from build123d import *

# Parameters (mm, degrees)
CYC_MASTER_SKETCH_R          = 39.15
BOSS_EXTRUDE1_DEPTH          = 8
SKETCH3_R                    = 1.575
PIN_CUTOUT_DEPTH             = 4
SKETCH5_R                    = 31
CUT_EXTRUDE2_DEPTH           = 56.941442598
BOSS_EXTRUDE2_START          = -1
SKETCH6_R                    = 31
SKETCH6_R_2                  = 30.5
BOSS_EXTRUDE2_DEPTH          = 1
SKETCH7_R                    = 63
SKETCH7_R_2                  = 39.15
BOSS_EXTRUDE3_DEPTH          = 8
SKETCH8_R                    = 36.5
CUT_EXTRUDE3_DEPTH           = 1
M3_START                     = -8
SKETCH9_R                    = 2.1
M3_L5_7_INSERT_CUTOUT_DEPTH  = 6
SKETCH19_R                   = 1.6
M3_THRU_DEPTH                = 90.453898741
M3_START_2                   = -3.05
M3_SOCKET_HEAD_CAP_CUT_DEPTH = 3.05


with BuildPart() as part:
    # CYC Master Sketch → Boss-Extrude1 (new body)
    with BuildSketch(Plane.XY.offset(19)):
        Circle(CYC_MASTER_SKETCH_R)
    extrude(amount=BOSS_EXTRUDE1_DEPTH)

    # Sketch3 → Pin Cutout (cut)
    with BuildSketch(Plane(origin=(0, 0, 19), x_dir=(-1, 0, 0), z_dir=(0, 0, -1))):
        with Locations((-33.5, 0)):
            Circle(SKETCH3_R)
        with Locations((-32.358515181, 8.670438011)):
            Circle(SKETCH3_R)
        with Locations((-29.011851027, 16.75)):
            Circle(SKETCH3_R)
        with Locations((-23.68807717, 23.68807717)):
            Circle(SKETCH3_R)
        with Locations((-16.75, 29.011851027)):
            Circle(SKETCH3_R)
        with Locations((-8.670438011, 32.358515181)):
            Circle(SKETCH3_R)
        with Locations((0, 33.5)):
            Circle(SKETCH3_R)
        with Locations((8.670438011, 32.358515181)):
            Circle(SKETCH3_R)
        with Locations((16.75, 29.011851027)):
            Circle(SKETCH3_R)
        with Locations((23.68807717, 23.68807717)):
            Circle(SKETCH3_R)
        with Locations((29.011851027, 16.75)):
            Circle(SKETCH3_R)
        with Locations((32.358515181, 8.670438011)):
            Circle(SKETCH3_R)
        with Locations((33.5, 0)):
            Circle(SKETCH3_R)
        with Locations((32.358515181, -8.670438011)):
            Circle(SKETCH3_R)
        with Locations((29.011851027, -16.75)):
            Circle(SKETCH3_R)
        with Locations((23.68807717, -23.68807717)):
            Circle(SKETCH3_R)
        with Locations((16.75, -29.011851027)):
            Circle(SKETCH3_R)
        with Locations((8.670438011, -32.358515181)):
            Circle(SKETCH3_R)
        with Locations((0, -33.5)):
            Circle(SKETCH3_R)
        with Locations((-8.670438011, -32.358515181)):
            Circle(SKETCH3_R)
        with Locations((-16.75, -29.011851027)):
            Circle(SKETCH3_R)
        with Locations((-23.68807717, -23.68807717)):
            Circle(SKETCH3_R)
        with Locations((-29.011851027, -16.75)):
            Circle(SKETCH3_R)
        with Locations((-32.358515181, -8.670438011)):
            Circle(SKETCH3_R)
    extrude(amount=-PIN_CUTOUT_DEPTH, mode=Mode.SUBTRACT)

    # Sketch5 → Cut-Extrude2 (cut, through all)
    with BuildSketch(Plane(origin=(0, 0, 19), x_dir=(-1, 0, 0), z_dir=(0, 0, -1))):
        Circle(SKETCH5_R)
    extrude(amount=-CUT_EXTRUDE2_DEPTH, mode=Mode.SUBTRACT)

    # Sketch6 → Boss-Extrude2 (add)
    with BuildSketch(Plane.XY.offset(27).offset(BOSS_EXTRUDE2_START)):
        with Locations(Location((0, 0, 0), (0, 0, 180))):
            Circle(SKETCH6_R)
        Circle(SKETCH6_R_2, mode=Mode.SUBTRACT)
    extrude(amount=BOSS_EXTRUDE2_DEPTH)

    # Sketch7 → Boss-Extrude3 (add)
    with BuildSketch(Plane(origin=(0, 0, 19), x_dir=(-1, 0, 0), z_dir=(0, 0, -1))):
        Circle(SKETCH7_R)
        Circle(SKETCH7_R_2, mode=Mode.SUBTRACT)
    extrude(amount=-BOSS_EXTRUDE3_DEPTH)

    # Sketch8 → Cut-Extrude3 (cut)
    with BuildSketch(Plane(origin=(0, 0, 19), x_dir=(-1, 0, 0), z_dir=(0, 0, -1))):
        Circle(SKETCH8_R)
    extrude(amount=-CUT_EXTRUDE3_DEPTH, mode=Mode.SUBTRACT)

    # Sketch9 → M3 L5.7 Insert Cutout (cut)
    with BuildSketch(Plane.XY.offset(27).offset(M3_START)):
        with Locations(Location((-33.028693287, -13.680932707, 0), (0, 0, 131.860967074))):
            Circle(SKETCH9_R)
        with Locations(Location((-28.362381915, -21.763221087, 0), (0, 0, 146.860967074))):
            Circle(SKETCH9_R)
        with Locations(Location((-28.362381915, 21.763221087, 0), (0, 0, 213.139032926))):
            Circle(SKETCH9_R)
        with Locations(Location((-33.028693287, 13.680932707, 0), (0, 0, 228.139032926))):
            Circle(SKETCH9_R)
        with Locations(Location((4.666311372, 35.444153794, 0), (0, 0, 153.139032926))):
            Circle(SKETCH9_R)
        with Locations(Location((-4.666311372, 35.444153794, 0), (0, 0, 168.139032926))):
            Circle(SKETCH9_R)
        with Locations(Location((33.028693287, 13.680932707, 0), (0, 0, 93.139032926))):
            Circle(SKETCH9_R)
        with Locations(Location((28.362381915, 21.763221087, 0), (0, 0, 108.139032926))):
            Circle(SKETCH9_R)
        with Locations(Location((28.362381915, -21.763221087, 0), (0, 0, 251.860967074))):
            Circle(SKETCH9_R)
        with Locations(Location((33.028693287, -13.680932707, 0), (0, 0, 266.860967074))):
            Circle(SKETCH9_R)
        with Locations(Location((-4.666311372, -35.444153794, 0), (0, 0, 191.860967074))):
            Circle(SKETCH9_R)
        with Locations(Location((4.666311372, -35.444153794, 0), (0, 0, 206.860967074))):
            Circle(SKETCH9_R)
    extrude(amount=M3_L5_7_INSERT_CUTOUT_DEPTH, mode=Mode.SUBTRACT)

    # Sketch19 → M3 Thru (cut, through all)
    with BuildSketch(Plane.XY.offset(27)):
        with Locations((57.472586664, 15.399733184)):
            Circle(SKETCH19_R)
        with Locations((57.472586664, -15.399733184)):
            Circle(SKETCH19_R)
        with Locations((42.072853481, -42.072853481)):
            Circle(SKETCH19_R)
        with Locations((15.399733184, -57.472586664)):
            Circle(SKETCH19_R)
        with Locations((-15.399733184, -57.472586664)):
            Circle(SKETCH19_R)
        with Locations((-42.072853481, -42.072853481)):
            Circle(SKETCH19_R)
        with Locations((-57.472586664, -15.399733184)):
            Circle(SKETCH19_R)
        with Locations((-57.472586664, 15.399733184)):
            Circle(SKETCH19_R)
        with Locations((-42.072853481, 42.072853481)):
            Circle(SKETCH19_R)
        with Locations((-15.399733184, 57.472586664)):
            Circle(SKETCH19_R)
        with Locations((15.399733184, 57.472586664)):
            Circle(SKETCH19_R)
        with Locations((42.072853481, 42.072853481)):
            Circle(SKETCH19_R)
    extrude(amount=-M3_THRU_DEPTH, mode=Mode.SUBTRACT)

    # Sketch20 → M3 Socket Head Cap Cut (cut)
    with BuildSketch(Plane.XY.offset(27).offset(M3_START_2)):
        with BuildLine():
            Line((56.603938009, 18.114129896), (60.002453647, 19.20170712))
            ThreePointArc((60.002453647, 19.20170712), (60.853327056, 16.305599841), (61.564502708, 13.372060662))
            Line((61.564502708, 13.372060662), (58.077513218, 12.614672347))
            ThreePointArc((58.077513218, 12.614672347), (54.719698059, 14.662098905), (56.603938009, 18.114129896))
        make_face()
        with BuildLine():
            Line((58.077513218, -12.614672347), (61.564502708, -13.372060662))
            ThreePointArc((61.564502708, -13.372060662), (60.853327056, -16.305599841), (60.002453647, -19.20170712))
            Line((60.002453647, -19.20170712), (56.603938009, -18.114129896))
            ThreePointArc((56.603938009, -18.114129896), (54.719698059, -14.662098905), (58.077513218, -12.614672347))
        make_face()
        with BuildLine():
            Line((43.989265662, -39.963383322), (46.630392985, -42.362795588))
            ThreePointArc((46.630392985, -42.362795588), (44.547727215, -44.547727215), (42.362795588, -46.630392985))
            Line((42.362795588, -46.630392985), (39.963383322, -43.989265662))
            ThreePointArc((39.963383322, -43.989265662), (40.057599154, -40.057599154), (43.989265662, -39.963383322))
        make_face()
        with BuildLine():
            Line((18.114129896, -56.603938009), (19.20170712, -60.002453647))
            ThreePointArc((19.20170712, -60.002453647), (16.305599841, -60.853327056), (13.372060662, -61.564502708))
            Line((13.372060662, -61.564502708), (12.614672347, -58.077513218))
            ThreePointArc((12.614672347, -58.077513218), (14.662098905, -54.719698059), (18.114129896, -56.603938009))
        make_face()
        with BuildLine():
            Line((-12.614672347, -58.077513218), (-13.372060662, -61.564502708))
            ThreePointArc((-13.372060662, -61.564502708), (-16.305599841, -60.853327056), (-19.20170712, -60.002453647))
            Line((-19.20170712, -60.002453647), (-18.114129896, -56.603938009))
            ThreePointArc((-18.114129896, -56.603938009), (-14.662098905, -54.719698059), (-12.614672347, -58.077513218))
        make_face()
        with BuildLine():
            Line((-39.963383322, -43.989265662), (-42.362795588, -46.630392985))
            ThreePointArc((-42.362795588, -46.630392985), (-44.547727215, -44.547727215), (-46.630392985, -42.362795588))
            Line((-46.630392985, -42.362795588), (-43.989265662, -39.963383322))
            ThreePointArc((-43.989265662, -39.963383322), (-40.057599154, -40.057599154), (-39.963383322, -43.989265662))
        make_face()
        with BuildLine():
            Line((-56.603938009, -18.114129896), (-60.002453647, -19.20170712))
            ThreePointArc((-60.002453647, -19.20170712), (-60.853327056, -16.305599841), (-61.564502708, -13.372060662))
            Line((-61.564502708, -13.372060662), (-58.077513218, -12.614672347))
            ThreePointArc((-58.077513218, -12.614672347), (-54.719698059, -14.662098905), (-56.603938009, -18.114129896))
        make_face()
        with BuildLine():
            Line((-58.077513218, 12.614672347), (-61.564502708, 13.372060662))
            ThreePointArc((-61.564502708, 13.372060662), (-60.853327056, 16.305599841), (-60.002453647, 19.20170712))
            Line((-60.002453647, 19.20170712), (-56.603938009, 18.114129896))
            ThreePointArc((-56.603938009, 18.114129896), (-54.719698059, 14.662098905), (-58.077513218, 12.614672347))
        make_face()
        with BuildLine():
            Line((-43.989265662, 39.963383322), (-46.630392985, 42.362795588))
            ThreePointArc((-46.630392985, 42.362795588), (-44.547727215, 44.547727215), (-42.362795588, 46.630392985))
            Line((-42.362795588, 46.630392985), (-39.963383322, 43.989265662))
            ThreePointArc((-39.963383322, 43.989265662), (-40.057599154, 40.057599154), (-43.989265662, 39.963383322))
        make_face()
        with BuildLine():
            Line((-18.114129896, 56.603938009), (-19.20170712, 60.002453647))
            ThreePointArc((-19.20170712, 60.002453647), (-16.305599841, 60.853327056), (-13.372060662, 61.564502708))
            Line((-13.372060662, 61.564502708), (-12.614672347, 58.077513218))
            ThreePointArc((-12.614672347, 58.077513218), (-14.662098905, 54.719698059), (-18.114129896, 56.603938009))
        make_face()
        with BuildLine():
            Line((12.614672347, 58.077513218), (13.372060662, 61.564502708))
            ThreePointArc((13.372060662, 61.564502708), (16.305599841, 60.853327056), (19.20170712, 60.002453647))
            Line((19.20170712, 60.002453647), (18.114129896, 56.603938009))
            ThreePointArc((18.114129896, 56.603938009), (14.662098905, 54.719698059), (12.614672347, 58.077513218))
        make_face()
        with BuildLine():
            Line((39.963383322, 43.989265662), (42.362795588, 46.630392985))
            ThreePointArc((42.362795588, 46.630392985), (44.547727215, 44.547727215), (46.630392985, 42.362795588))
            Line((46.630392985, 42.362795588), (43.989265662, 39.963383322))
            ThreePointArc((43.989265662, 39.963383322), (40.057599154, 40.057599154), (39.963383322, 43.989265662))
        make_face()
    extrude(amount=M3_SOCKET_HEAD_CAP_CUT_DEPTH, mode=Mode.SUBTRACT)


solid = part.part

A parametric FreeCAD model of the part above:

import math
import FreeCAD as App
import Part
import Sketcher

doc = App.newDocument("Part")
body = doc.addObject("PartDesign::Body", "Body")

sketch1 = body.newObject("Sketcher::SketchObject", "Sketch")
sketch1.AttachmentSupport = (doc.getObject("XY_Plane"), [""])
sketch1.MapMode = "FlatFace"
sketch1.AttachmentOffset = App.Placement(App.Vector(0, 0, 19), App.Rotation())
sketch1.addGeometry(Part.Circle(App.Vector(0, 0, 0), App.Vector(0, 0, 1), 39), False)
sketch1.addConstraint([
    Sketcher.Constraint("Coincident", 0, 3, -1, 1),
    Sketcher.Constraint("Diameter", 0, 78.3),
])
pad1 = body.newObject("PartDesign::Pad", "Pad")
pad1.Profile = sketch1
pad1.Length = 8

sketch2 = body.newObject("Sketcher::SketchObject", "Sketch001")
sketch2.AttachmentSupport = (doc.getObject("XY_Plane"), [""])
sketch2.MapMode = "FlatFace"
sketch2.AttachmentOffset = App.Placement(App.Vector(0, 0, 19), App.Rotation())
sketch2.addGeometry([
    Part.Circle(App.Vector(33.5, 0, 0), App.Vector(0, 0, 1), 1.6),
    Part.Circle(App.Vector(32.4, 8.7, 0), App.Vector(0, 0, 1), 1.6),
    Part.Circle(App.Vector(29, 16.8, 0), App.Vector(0, 0, 1), 1.6),
    Part.Circle(App.Vector(23.7, 23.7, 0), App.Vector(0, 0, 1), 1.6),
    Part.Circle(App.Vector(16.8, 29, 0), App.Vector(0, 0, 1), 1.6),
    Part.Circle(App.Vector(8.7, 32.4, 0), App.Vector(0, 0, 1), 1.6),
    Part.Circle(App.Vector(0, 33.5, 0), App.Vector(0, 0, 1), 1.6),
    Part.Circle(App.Vector(-8.7, 32.4, 0), App.Vector(0, 0, 1), 1.6),
    Part.Circle(App.Vector(-16.8, 29, 0), App.Vector(0, 0, 1), 1.6),
    Part.Circle(App.Vector(-23.7, 23.7, 0), App.Vector(0, 0, 1), 1.6),
    Part.Circle(App.Vector(-29, 16.8, 0), App.Vector(0, 0, 1), 1.6),
    Part.Circle(App.Vector(-32.4, 8.7, 0), App.Vector(0, 0, 1), 1.6),
    Part.Circle(App.Vector(-33.5, 0, 0), App.Vector(0, 0, 1), 1.6),
    Part.Circle(App.Vector(-32.4, -8.7, 0), App.Vector(0, 0, 1), 1.6),
    Part.Circle(App.Vector(-29, -16.8, 0), App.Vector(0, 0, 1), 1.6),
    Part.Circle(App.Vector(-23.7, -23.7, 0), App.Vector(0, 0, 1), 1.6),
    Part.Circle(App.Vector(-16.8, -29, 0), App.Vector(0, 0, 1), 1.6),
    Part.Circle(App.Vector(-8.7, -32.4, 0), App.Vector(0, 0, 1), 1.6),
    Part.Circle(App.Vector(0, -33.5, 0), App.Vector(0, 0, 1), 1.6),
    Part.Circle(App.Vector(8.7, -32.4, 0), App.Vector(0, 0, 1), 1.6),
    Part.Circle(App.Vector(16.8, -29, 0), App.Vector(0, 0, 1), 1.6),
    Part.Circle(App.Vector(23.7, -23.7, 0), App.Vector(0, 0, 1), 1.6),
    Part.Circle(App.Vector(29, -16.8, 0), App.Vector(0, 0, 1), 1.6),
    Part.Circle(App.Vector(32.4, -8.7, 0), App.Vector(0, 0, 1), 1.6),
], False)
sketch2.addConstraint([
    Sketcher.Constraint("Equal", 0, 1),
    Sketcher.Constraint("Equal", 1, 2),
    Sketcher.Constraint("Equal", 2, 3),
    Sketcher.Constraint("Equal", 3, 4),
    Sketcher.Constraint("Equal", 4, 5),
    Sketcher.Constraint("Equal", 5, 6),
    Sketcher.Constraint("Equal", 6, 7),
    Sketcher.Constraint("Equal", 7, 8),
    Sketcher.Constraint("Equal", 8, 9),
    Sketcher.Constraint("Equal", 9, 10),
    Sketcher.Constraint("Equal", 10, 11),
    Sketcher.Constraint("Equal", 11, 12),
    Sketcher.Constraint("Equal", 12, 13),
    Sketcher.Constraint("Equal", 13, 14),
    Sketcher.Constraint("Equal", 14, 15),
    Sketcher.Constraint("Equal", 15, 16),
    Sketcher.Constraint("Equal", 16, 17),
    Sketcher.Constraint("Equal", 17, 18),
    Sketcher.Constraint("Equal", 18, 19),
    Sketcher.Constraint("Equal", 19, 20),
    Sketcher.Constraint("Equal", 20, 21),
    Sketcher.Constraint("Equal", 21, 22),
    Sketcher.Constraint("Equal", 22, 23),
    Sketcher.Constraint("Symmetric", 0, 3, 12, 3, -1, 1),
    Sketcher.Constraint("Symmetric", 1, 3, 13, 3, -1, 1),
    Sketcher.Constraint("Symmetric", 2, 3, 14, 3, -1, 1),
    Sketcher.Constraint("Symmetric", 3, 3, 15, 3, -1, 1),
    Sketcher.Constraint("Symmetric", 4, 3, 16, 3, -1, 1),
    Sketcher.Constraint("Symmetric", 5, 3, 17, 3, -1, 1),
    Sketcher.Constraint("Symmetric", 6, 3, 18, 3, -1, 1),
    Sketcher.Constraint("Symmetric", 7, 3, 19, 3, -1, 1),
    Sketcher.Constraint("Symmetric", 8, 3, 20, 3, -1, 1),
    Sketcher.Constraint("Symmetric", 9, 3, 21, 3, -1, 1),
    Sketcher.Constraint("Symmetric", 10, 3, 22, 3, -1, 1),
    Sketcher.Constraint("Symmetric", 11, 3, 23, 3, -1, 1),
    Sketcher.Constraint("Symmetric", 5, 3, 7, 3, -2),
    Sketcher.Constraint("Symmetric", 4, 3, 8, 3, -2),
    Sketcher.Constraint("Symmetric", 3, 3, 9, 3, -2),
    Sketcher.Constraint("Symmetric", 2, 3, 10, 3, -2),
    Sketcher.Constraint("Symmetric", 1, 3, 11, 3, -2),
    Sketcher.Constraint("PointOnObject", 0, 3, -1),
    Sketcher.Constraint("PointOnObject", 6, 3, -2),
    Sketcher.Constraint("Diameter", 0, 3.15),
    Sketcher.Constraint("DistanceX", -1, 1, 0, 3, 33.5),
    Sketcher.Constraint("DistanceY", -1, 1, 6, 3, 33.5),
    Sketcher.Constraint("DistanceX", 8, 3, 4, 3, 33.5),
    Sketcher.Constraint("DistanceY", 14, 3, 10, 3, 33.5),
    Sketcher.Constraint("DistanceY", -1, 1, 1, 3, 8.670438),
    Sketcher.Constraint("DistanceX", -1, 1, 2, 3, 29.011851),
    Sketcher.Constraint("DistanceY", -1, 1, 4, 3, 29.011851),
    Sketcher.Constraint("DistanceX", -1, 1, 5, 3, 8.670438),
    Sketcher.Constraint("DistanceX", 3, 3, 1, 3, 8.670438),
    Sketcher.Constraint("DistanceY", 1, 3, 3, 3, 15.017639),
    Sketcher.Constraint("DistanceX", 5, 3, 3, 3, 15.017639),
    Sketcher.Constraint("DistanceY", 3, 3, 5, 3, 8.670438),
])
pocket1 = body.newObject("PartDesign::Pocket", "Pocket")
pocket1.Profile = sketch2
pocket1.Length = 4
pocket1.Reversed = True

sketch3 = body.newObject("Sketcher::SketchObject", "Sketch002")
sketch3.AttachmentSupport = (doc.getObject("XY_Plane"), [""])
sketch3.MapMode = "FlatFace"
sketch3.AttachmentOffset = App.Placement(App.Vector(0, 0, 19), App.Rotation())
sketch3.addGeometry(Part.Circle(App.Vector(0, 0, 0), App.Vector(0, 0, 1), 31), False)
sketch3.addConstraint([
    Sketcher.Constraint("Coincident", 0, 3, -1, 1),
    Sketcher.Constraint("Diameter", 0, 62.0),
])
pocket2 = body.newObject("PartDesign::Pocket", "Pocket001")
pocket2.Profile = sketch3
pocket2.Type = "ThroughAll"
pocket2.Reversed = True

sketch4 = body.newObject("Sketcher::SketchObject", "Sketch003")
sketch4.AttachmentSupport = (doc.getObject("XY_Plane"), [""])
sketch4.MapMode = "FlatFace"
sketch4.AttachmentOffset = App.Placement(App.Vector(0, 0, 26), App.Rotation())
sketch4.addGeometry([
    Part.Circle(App.Vector(0, 0, 0), App.Vector(0, 0, 1), 31),
    Part.Circle(App.Vector(0, 0, 0), App.Vector(0, 0, 1), 30),
], False)
sketch4.addConstraint([
    Sketcher.Constraint("Coincident", 0, 3, -1, 1),
    Sketcher.Constraint("Coincident", 1, 3, -1, 1),
    Sketcher.Constraint("Diameter", 0, 62.0),
    Sketcher.Constraint("Diameter", 1, 61.0),
])
pad2 = body.newObject("PartDesign::Pad", "Pad001")
pad2.Profile = sketch4
pad2.Length = 1

sketch5 = body.newObject("Sketcher::SketchObject", "Sketch004")
sketch5.AttachmentSupport = (doc.getObject("XY_Plane"), [""])
sketch5.MapMode = "FlatFace"
sketch5.AttachmentOffset = App.Placement(App.Vector(0, 0, 19), App.Rotation())
sketch5.addGeometry([
    Part.Circle(App.Vector(0, 0, 0), App.Vector(0, 0, 1), 63),
    Part.Circle(App.Vector(0, 0, 0), App.Vector(0, 0, 1), 39),
], False)
sketch5.addConstraint([
    Sketcher.Constraint("Coincident", 0, 3, -1, 1),
    Sketcher.Constraint("Coincident", 1, 3, -1, 1),
    Sketcher.Constraint("Diameter", 0, 126.0),
    Sketcher.Constraint("Diameter", 1, 78.3),
])
pad3 = body.newObject("PartDesign::Pad", "Pad002")
pad3.Profile = sketch5
pad3.Length = 8

sketch6 = body.newObject("Sketcher::SketchObject", "Sketch005")
sketch6.AttachmentSupport = (doc.getObject("XY_Plane"), [""])
sketch6.MapMode = "FlatFace"
sketch6.AttachmentOffset = App.Placement(App.Vector(0, 0, 19), App.Rotation())
sketch6.addGeometry(Part.Circle(App.Vector(0, 0, 0), App.Vector(0, 0, 1), 36), False)
sketch6.addConstraint([
    Sketcher.Constraint("Coincident", 0, 3, -1, 1),
    Sketcher.Constraint("Diameter", 0, 73.0),
])
pocket3 = body.newObject("PartDesign::Pocket", "Pocket002")
pocket3.Profile = sketch6
pocket3.Length = 1
pocket3.Reversed = True

sketch7 = body.newObject("Sketcher::SketchObject", "Sketch006")
sketch7.AttachmentSupport = (doc.getObject("XY_Plane"), [""])
sketch7.MapMode = "FlatFace"
sketch7.AttachmentOffset = App.Placement(App.Vector(0, 0, 19), App.Rotation())
sketch7.addGeometry([
    Part.Circle(App.Vector(-33, -13.7, 0), App.Vector(0, 0, 1), 2.1),
    Part.Circle(App.Vector(-28.4, -21.8, 0), App.Vector(0, 0, 1), 2.1),
    Part.Circle(App.Vector(-28.4, 21.8, 0), App.Vector(0, 0, 1), 2.1),
    Part.Circle(App.Vector(-33, 13.7, 0), App.Vector(0, 0, 1), 2.1),
    Part.Circle(App.Vector(4.7, 35.4, 0), App.Vector(0, 0, 1), 2.1),
    Part.Circle(App.Vector(-4.7, 35.4, 0), App.Vector(0, 0, 1), 2.1),
    Part.Circle(App.Vector(33, 13.7, 0), App.Vector(0, 0, 1), 2.1),
    Part.Circle(App.Vector(28.4, 21.8, 0), App.Vector(0, 0, 1), 2.1),
    Part.Circle(App.Vector(28.4, -21.8, 0), App.Vector(0, 0, 1), 2.1),
    Part.Circle(App.Vector(33, -13.7, 0), App.Vector(0, 0, 1), 2.1),
    Part.Circle(App.Vector(-4.7, -35.4, 0), App.Vector(0, 0, 1), 2.1),
    Part.Circle(App.Vector(4.7, -35.4, 0), App.Vector(0, 0, 1), 2.1),
], False)
sketch7.addConstraint([
    Sketcher.Constraint("Equal", 0, 1),
    Sketcher.Constraint("Equal", 1, 2),
    Sketcher.Constraint("Equal", 2, 3),
    Sketcher.Constraint("Equal", 3, 4),
    Sketcher.Constraint("Equal", 4, 5),
    Sketcher.Constraint("Equal", 5, 6),
    Sketcher.Constraint("Equal", 6, 7),
    Sketcher.Constraint("Equal", 7, 8),
    Sketcher.Constraint("Equal", 8, 9),
    Sketcher.Constraint("Equal", 9, 10),
    Sketcher.Constraint("Equal", 10, 11),
    Sketcher.Constraint("Symmetric", 0, 3, 6, 3, -1, 1),
    Sketcher.Constraint("Symmetric", 1, 3, 7, 3, -1, 1),
    Sketcher.Constraint("Symmetric", 2, 3, 8, 3, -1, 1),
    Sketcher.Constraint("Symmetric", 3, 3, 9, 3, -1, 1),
    Sketcher.Constraint("Symmetric", 4, 3, 10, 3, -1, 1),
    Sketcher.Constraint("Symmetric", 5, 3, 11, 3, -1, 1),
    Sketcher.Constraint("Symmetric", 4, 3, 5, 3, -2),
    Sketcher.Constraint("Symmetric", 3, 3, 6, 3, -2),
    Sketcher.Constraint("Symmetric", 2, 3, 7, 3, -2),
    Sketcher.Constraint("Diameter", 0, 4.2),
    Sketcher.Constraint("DistanceX", 1, 3, -1, 1, 28.362382),
    Sketcher.Constraint("DistanceY", 1, 3, -1, 1, 21.763221),
    Sketcher.Constraint("DistanceX", -1, 1, 4, 3, 4.666311),
    Sketcher.Constraint("DistanceX", 0, 3, 1, 3, 4.666311),
    Sketcher.Constraint("DistanceY", 1, 3, 0, 3, 8.082288),
    Sketcher.Constraint("DistanceY", 3, 3, 4, 3, 21.763221),
])
pocket4 = body.newObject("PartDesign::Pocket", "Pocket003")
pocket4.Profile = sketch7
pocket4.Length = 6
pocket4.Reversed = True

sketch8 = body.newObject("Sketcher::SketchObject", "Sketch007")
sketch8.AttachmentSupport = (doc.getObject("XY_Plane"), [""])
sketch8.MapMode = "FlatFace"
sketch8.AttachmentOffset = App.Placement(App.Vector(0, 0, 27), App.Rotation())
sketch8.addGeometry([
    Part.Circle(App.Vector(57.5, 15.4, 0), App.Vector(0, 0, 1), 1.6),
    Part.Circle(App.Vector(57.5, -15.4, 0), App.Vector(0, 0, 1), 1.6),
    Part.Circle(App.Vector(42.1, -42.1, 0), App.Vector(0, 0, 1), 1.6),
    Part.Circle(App.Vector(15.4, -57.5, 0), App.Vector(0, 0, 1), 1.6),
    Part.Circle(App.Vector(-15.4, -57.5, 0), App.Vector(0, 0, 1), 1.6),
    Part.Circle(App.Vector(-42.1, -42.1, 0), App.Vector(0, 0, 1), 1.6),
    Part.Circle(App.Vector(-57.5, -15.4, 0), App.Vector(0, 0, 1), 1.6),
    Part.Circle(App.Vector(-57.5, 15.4, 0), App.Vector(0, 0, 1), 1.6),
    Part.Circle(App.Vector(-42.1, 42.1, 0), App.Vector(0, 0, 1), 1.6),
    Part.Circle(App.Vector(-15.4, 57.5, 0), App.Vector(0, 0, 1), 1.6),
    Part.Circle(App.Vector(15.4, 57.5, 0), App.Vector(0, 0, 1), 1.6),
    Part.Circle(App.Vector(42.1, 42.1, 0), App.Vector(0, 0, 1), 1.6),
], False)
sketch8.addConstraint([
    Sketcher.Constraint("Equal", 0, 1),
    Sketcher.Constraint("Equal", 1, 2),
    Sketcher.Constraint("Equal", 2, 3),
    Sketcher.Constraint("Equal", 3, 4),
    Sketcher.Constraint("Equal", 4, 5),
    Sketcher.Constraint("Equal", 5, 6),
    Sketcher.Constraint("Equal", 6, 7),
    Sketcher.Constraint("Equal", 7, 8),
    Sketcher.Constraint("Equal", 8, 9),
    Sketcher.Constraint("Equal", 9, 10),
    Sketcher.Constraint("Equal", 10, 11),
    Sketcher.Constraint("Symmetric", 0, 3, 6, 3, -1, 1),
    Sketcher.Constraint("Symmetric", 1, 3, 7, 3, -1, 1),
    Sketcher.Constraint("Symmetric", 2, 3, 8, 3, -1, 1),
    Sketcher.Constraint("Symmetric", 3, 3, 9, 3, -1, 1),
    Sketcher.Constraint("Symmetric", 4, 3, 10, 3, -1, 1),
    Sketcher.Constraint("Symmetric", 5, 3, 11, 3, -1, 1),
    Sketcher.Constraint("Symmetric", 3, 3, 4, 3, -2),
    Sketcher.Constraint("Symmetric", 2, 3, 5, 3, -2),
    Sketcher.Constraint("Symmetric", 1, 3, 6, 3, -2),
    Sketcher.Constraint("Diameter", 0, 3.2),
    Sketcher.Constraint("DistanceY", 2, 3, 1, 3, 26.67312),
    Sketcher.Constraint("DistanceX", 3, 3, 2, 3, 26.67312),
    Sketcher.Constraint("DistanceY", 3, 3, 0, 3, 72.87232),
    Sketcher.Constraint("DistanceX", 4, 3, 1, 3, 72.87232),
    Sketcher.Constraint("DistanceX", -1, 1, 0, 3, 57.472587),
    Sketcher.Constraint("DistanceY", -1, 1, 0, 3, 15.399733),
])
pocket5 = body.newObject("PartDesign::Pocket", "Pocket004")
pocket5.Profile = sketch8
pocket5.Type = "ThroughAll"

sketch9 = body.newObject("Sketcher::SketchObject", "Sketch008")
sketch9.AttachmentSupport = (doc.getObject("XY_Plane"), [""])
sketch9.MapMode = "FlatFace"
sketch9.AttachmentOffset = App.Placement(App.Vector(0, 0, 23.95), App.Rotation())
sketch9.addGeometry([
    Part.LineSegment(App.Vector(60, 19.2, 0), App.Vector(56.6, 18.1, 0)),
    Part.ArcOfCircle(Part.Circle(App.Vector(57.5, 15.4, 0), App.Vector(0, 0, 1), 2.9), math.radians(108), math.radians(282)),
    Part.LineSegment(App.Vector(58.1, 12.6, 0), App.Vector(61.6, 13.4, 0)),
    Part.ArcOfCircle(Part.Circle(App.Vector(0, 0, 0), App.Vector(0, 0, 1), 63), math.radians(12.25), math.radians(17.75)),
    Part.LineSegment(App.Vector(61.6, -13.4, 0), App.Vector(58.1, -12.6, 0)),
    Part.ArcOfCircle(Part.Circle(App.Vector(57.5, -15.4, 0), App.Vector(0, 0, 1), 2.9), math.radians(78), math.radians(252)),
    Part.LineSegment(App.Vector(56.6, -18.1, 0), App.Vector(60, -19.2, 0)),
    Part.ArcOfCircle(Part.Circle(App.Vector(0, 0, 0), App.Vector(0, 0, 1), 63), math.radians(-17.75), math.radians(-12.25)),
    Part.LineSegment(App.Vector(46.6, -42.4, 0), App.Vector(44, -40, 0)),
    Part.ArcOfCircle(Part.Circle(App.Vector(42.1, -42.1, 0), App.Vector(0, 0, 1), 2.9), math.radians(48), math.radians(222)),
    Part.LineSegment(App.Vector(40, -44, 0), App.Vector(42.4, -46.6, 0)),
    Part.ArcOfCircle(Part.Circle(App.Vector(0, 0, 0), App.Vector(0, 0, 1), 63), math.radians(-47.75), math.radians(-42.25)),
    Part.LineSegment(App.Vector(19.2, -60, 0), App.Vector(18.1, -56.6, 0)),
    Part.ArcOfCircle(Part.Circle(App.Vector(15.4, -57.5, 0), App.Vector(0, 0, 1), 2.9), math.radians(18), math.radians(192)),
    Part.LineSegment(App.Vector(12.6, -58.1, 0), App.Vector(13.4, -61.6, 0)),
    Part.ArcOfCircle(Part.Circle(App.Vector(0, 0, 0), App.Vector(0, 0, 1), 63), math.radians(-77.75), math.radians(-72.25)),
    Part.LineSegment(App.Vector(-13.4, -61.6, 0), App.Vector(-12.6, -58.1, 0)),
    Part.ArcOfCircle(Part.Circle(App.Vector(-15.4, -57.5, 0), App.Vector(0, 0, 1), 2.9), math.radians(-12), math.radians(162)),
    Part.LineSegment(App.Vector(-18.1, -56.6, 0), App.Vector(-19.2, -60, 0)),
    Part.ArcOfCircle(Part.Circle(App.Vector(0, 0, 0), App.Vector(0, 0, 1), 63), math.radians(-107.75), math.radians(-102.25)),
    Part.LineSegment(App.Vector(-42.4, -46.6, 0), App.Vector(-40, -44, 0)),
    Part.ArcOfCircle(Part.Circle(App.Vector(-42.1, -42.1, 0), App.Vector(0, 0, 1), 2.9), math.radians(-42), math.radians(132)),
    Part.LineSegment(App.Vector(-44, -40, 0), App.Vector(-46.6, -42.4, 0)),
    Part.ArcOfCircle(Part.Circle(App.Vector(0, 0, 0), App.Vector(0, 0, 1), 63), math.radians(-137.75), math.radians(-132.25)),
    Part.LineSegment(App.Vector(-60, -19.2, 0), App.Vector(-56.6, -18.1, 0)),
    Part.ArcOfCircle(Part.Circle(App.Vector(-57.5, -15.4, 0), App.Vector(0, 0, 1), 2.9), math.radians(-72), math.radians(102)),
    Part.LineSegment(App.Vector(-58.1, -12.6, 0), App.Vector(-61.6, -13.4, 0)),
    Part.ArcOfCircle(Part.Circle(App.Vector(0, 0, 0), App.Vector(0, 0, 1), 63), math.radians(-167.75), math.radians(-162.25)),
    Part.LineSegment(App.Vector(-61.6, 13.4, 0), App.Vector(-58.1, 12.6, 0)),
    Part.ArcOfCircle(Part.Circle(App.Vector(-57.5, 15.4, 0), App.Vector(0, 0, 1), 2.9), math.radians(-102), math.radians(72)),
    Part.LineSegment(App.Vector(-56.6, 18.1, 0), App.Vector(-60, 19.2, 0)),
    Part.ArcOfCircle(Part.Circle(App.Vector(0, 0, 0), App.Vector(0, 0, 1), 63), math.radians(162.25), math.radians(167.75)),
    Part.LineSegment(App.Vector(-46.6, 42.4, 0), App.Vector(-44, 40, 0)),
    Part.ArcOfCircle(Part.Circle(App.Vector(-42.1, 42.1, 0), App.Vector(0, 0, 1), 2.9), math.radians(-132), math.radians(42)),
    Part.LineSegment(App.Vector(-40, 44, 0), App.Vector(-42.4, 46.6, 0)),
    Part.ArcOfCircle(Part.Circle(App.Vector(0, 0, 0), App.Vector(0, 0, 1), 63), math.radians(132.25), math.radians(137.75)),
    Part.LineSegment(App.Vector(-19.2, 60, 0), App.Vector(-18.1, 56.6, 0)),
    Part.ArcOfCircle(Part.Circle(App.Vector(-15.4, 57.5, 0), App.Vector(0, 0, 1), 2.9), math.radians(-162), math.radians(12)),
    Part.LineSegment(App.Vector(-12.6, 58.1, 0), App.Vector(-13.4, 61.6, 0)),
    Part.ArcOfCircle(Part.Circle(App.Vector(0, 0, 0), App.Vector(0, 0, 1), 63), math.radians(102.25), math.radians(107.75)),
    Part.LineSegment(App.Vector(13.4, 61.6, 0), App.Vector(12.6, 58.1, 0)),
    Part.ArcOfCircle(Part.Circle(App.Vector(15.4, 57.5, 0), App.Vector(0, 0, 1), 2.9), math.radians(168), math.radians(342)),
    Part.LineSegment(App.Vector(18.1, 56.6, 0), App.Vector(19.2, 60, 0)),
    Part.ArcOfCircle(Part.Circle(App.Vector(0, 0, 0), App.Vector(0, 0, 1), 63), math.radians(72.25), math.radians(77.75)),
    Part.LineSegment(App.Vector(42.4, 46.6, 0), App.Vector(40, 44, 0)),
    Part.ArcOfCircle(Part.Circle(App.Vector(42.1, 42.1, 0), App.Vector(0, 0, 1), 2.9), math.radians(138), math.radians(312)),
    Part.LineSegment(App.Vector(44, 40, 0), App.Vector(46.6, 42.4, 0)),
    Part.ArcOfCircle(Part.Circle(App.Vector(0, 0, 0), App.Vector(0, 0, 1), 63), math.radians(42.25), math.radians(47.75)),
], False)
sketch9.addConstraint([
    Sketcher.Constraint("Tangent", 0, 2, 1, 1),
    Sketcher.Constraint("Tangent", 1, 2, 2, 1),
    Sketcher.Constraint("Coincident", 2, 2, 3, 1),
    Sketcher.Constraint("Coincident", 3, 2, 0, 1),
    Sketcher.Constraint("Tangent", 4, 2, 5, 1),
    Sketcher.Constraint("Tangent", 5, 2, 6, 1),
    Sketcher.Constraint("Coincident", 6, 2, 7, 1),
    Sketcher.Constraint("Coincident", 7, 2, 4, 1),
    Sketcher.Constraint("Tangent", 8, 2, 9, 1),
    Sketcher.Constraint("Tangent", 9, 2, 10, 1),
    Sketcher.Constraint("Coincident", 10, 2, 11, 1),
    Sketcher.Constraint("Coincident", 11, 2, 8, 1),
    Sketcher.Constraint("Tangent", 12, 2, 13, 1),
    Sketcher.Constraint("Tangent", 13, 2, 14, 1),
    Sketcher.Constraint("Coincident", 14, 2, 15, 1),
    Sketcher.Constraint("Coincident", 15, 2, 12, 1),
    Sketcher.Constraint("Tangent", 16, 2, 17, 1),
    Sketcher.Constraint("Tangent", 17, 2, 18, 1),
    Sketcher.Constraint("Coincident", 18, 2, 19, 1),
    Sketcher.Constraint("Coincident", 19, 2, 16, 1),
    Sketcher.Constraint("Tangent", 20, 2, 21, 1),
    Sketcher.Constraint("Tangent", 21, 2, 22, 1),
    Sketcher.Constraint("Coincident", 22, 2, 23, 1),
    Sketcher.Constraint("Coincident", 23, 2, 20, 1),
    Sketcher.Constraint("Tangent", 24, 2, 25, 1),
    Sketcher.Constraint("Tangent", 25, 2, 26, 1),
    Sketcher.Constraint("Coincident", 26, 2, 27, 1),
    Sketcher.Constraint("Coincident", 27, 2, 24, 1),
    Sketcher.Constraint("Tangent", 28, 2, 29, 1),
    Sketcher.Constraint("Tangent", 29, 2, 30, 1),
    Sketcher.Constraint("Coincident", 30, 2, 31, 1),
    Sketcher.Constraint("Coincident", 31, 2, 28, 1),
    Sketcher.Constraint("Tangent", 32, 2, 33, 1),
    Sketcher.Constraint("Tangent", 33, 2, 34, 1),
    Sketcher.Constraint("Coincident", 34, 2, 35, 1),
    Sketcher.Constraint("Coincident", 35, 2, 32, 1),
    Sketcher.Constraint("Tangent", 36, 2, 37, 1),
    Sketcher.Constraint("Tangent", 37, 2, 38, 1),
    Sketcher.Constraint("Coincident", 38, 2, 39, 1),
    Sketcher.Constraint("Coincident", 39, 2, 36, 1),
    Sketcher.Constraint("Tangent", 40, 2, 41, 1),
    Sketcher.Constraint("Tangent", 41, 2, 42, 1),
    Sketcher.Constraint("Coincident", 42, 2, 43, 1),
    Sketcher.Constraint("Coincident", 43, 2, 40, 1),
    Sketcher.Constraint("Tangent", 44, 2, 45, 1),
    Sketcher.Constraint("Tangent", 45, 2, 46, 1),
    Sketcher.Constraint("Coincident", 46, 2, 47, 1),
    Sketcher.Constraint("Coincident", 47, 2, 44, 1),
    Sketcher.Constraint("Coincident", 3, 3, -1, 1),
    Sketcher.Constraint("Coincident", 7, 3, -1, 1),
    Sketcher.Constraint("Coincident", 11, 3, -1, 1),
    Sketcher.Constraint("Coincident", 15, 3, -1, 1),
    Sketcher.Constraint("Coincident", 19, 3, -1, 1),
    Sketcher.Constraint("Coincident", 23, 3, -1, 1),
    Sketcher.Constraint("Coincident", 27, 3, -1, 1),
    Sketcher.Constraint("Coincident", 31, 3, -1, 1),
    Sketcher.Constraint("Coincident", 35, 3, -1, 1),
    Sketcher.Constraint("Coincident", 39, 3, -1, 1),
    Sketcher.Constraint("Coincident", 43, 3, -1, 1),
    Sketcher.Constraint("Coincident", 47, 3, -1, 1),
    Sketcher.Constraint("Equal", 1, 5),
    Sketcher.Constraint("Equal", 3, 7),
    Sketcher.Constraint("Equal", 5, 9),
    Sketcher.Constraint("Equal", 7, 11),
    Sketcher.Constraint("Equal", 9, 13),
    Sketcher.Constraint("Equal", 11, 15),
    Sketcher.Constraint("Equal", 13, 17),
    Sketcher.Constraint("Equal", 15, 19),
    Sketcher.Constraint("Equal", 17, 21),
    Sketcher.Constraint("Equal", 19, 23),
    Sketcher.Constraint("Equal", 21, 25),
    Sketcher.Constraint("Equal", 23, 27),
    Sketcher.Constraint("Equal", 25, 29),
    Sketcher.Constraint("Equal", 27, 31),
    Sketcher.Constraint("Equal", 29, 33),
    Sketcher.Constraint("Equal", 31, 35),
    Sketcher.Constraint("Equal", 33, 37),
    Sketcher.Constraint("Equal", 35, 39),
    Sketcher.Constraint("Equal", 37, 41),
    Sketcher.Constraint("Equal", 39, 43),
    Sketcher.Constraint("Equal", 41, 45),
    Sketcher.Constraint("Equal", 43, 47),
    Sketcher.Constraint("Symmetric", 1, 3, 25, 3, -1, 1),
    Sketcher.Constraint("Symmetric", 5, 3, 29, 3, -1, 1),
    Sketcher.Constraint("Symmetric", 9, 3, 33, 3, -1, 1),
    Sketcher.Constraint("Symmetric", 13, 3, 37, 3, -1, 1),
    Sketcher.Constraint("Symmetric", 17, 3, 41, 3, -1, 1),
    Sketcher.Constraint("Symmetric", 21, 3, 45, 3, -1, 1),
    Sketcher.Constraint("Symmetric", 13, 3, 17, 3, -2),
    Sketcher.Constraint("Symmetric", 9, 3, 21, 3, -2),
    Sketcher.Constraint("Symmetric", 5, 3, 25, 3, -2),
    Sketcher.Constraint("Perpendicular", 0, 12),
    Sketcher.Constraint("Perpendicular", 2, 14),
    Sketcher.Constraint("Perpendicular", 4, 16),
    Sketcher.Constraint("Perpendicular", 6, 18),
    Sketcher.Constraint("Perpendicular", 8, 20),
    Sketcher.Constraint("Perpendicular", 10, 22),
    Sketcher.Constraint("Perpendicular", 12, 24),
    Sketcher.Constraint("Perpendicular", 14, 26),
    Sketcher.Constraint("Perpendicular", 16, 28),
    Sketcher.Constraint("Perpendicular", 18, 30),
    Sketcher.Constraint("Perpendicular", 20, 32),
    Sketcher.Constraint("Perpendicular", 22, 34),
    Sketcher.Constraint("Perpendicular", 24, 36),
    Sketcher.Constraint("Perpendicular", 26, 38),
    Sketcher.Constraint("Perpendicular", 28, 40),
    Sketcher.Constraint("Perpendicular", 30, 42),
    Sketcher.Constraint("Perpendicular", 32, 44),
    Sketcher.Constraint("Perpendicular", 34, 46),
    Sketcher.Constraint("Horizontal", 13, 2, 16, 2),
    Sketcher.Constraint("Horizontal", 12, 2, 17, 2),
    Sketcher.Constraint("Horizontal", 9, 2, 20, 2),
    Sketcher.Constraint("Equal", 0, 2),
    Sketcher.Constraint("Equal", 6, 8),
    Sketcher.Constraint("Equal", 8, 10),
    Sketcher.Constraint("Equal", 10, 12),
    Sketcher.Constraint("Equal", 12, 14),
    Sketcher.Constraint("Radius", 3, 63.0),
    Sketcher.Constraint("Radius", 1, 2.85),
    Sketcher.Constraint("DistanceX", -1, 1, 0, 2, 56.603938),
    Sketcher.Constraint("DistanceY", -1, 1, 0, 2, 18.11413),
    Sketcher.Constraint("DistanceY", -1, 1, 2, 2, 13.372061),
    Sketcher.Constraint("DistanceX", -1, 1, 9, 3, 42.072853),
])
pocket6 = body.newObject("PartDesign::Pocket", "Pocket005")
pocket6.Profile = sketch9
pocket6.Length = 3.05
pocket6.Reversed = True

doc.recompute()
